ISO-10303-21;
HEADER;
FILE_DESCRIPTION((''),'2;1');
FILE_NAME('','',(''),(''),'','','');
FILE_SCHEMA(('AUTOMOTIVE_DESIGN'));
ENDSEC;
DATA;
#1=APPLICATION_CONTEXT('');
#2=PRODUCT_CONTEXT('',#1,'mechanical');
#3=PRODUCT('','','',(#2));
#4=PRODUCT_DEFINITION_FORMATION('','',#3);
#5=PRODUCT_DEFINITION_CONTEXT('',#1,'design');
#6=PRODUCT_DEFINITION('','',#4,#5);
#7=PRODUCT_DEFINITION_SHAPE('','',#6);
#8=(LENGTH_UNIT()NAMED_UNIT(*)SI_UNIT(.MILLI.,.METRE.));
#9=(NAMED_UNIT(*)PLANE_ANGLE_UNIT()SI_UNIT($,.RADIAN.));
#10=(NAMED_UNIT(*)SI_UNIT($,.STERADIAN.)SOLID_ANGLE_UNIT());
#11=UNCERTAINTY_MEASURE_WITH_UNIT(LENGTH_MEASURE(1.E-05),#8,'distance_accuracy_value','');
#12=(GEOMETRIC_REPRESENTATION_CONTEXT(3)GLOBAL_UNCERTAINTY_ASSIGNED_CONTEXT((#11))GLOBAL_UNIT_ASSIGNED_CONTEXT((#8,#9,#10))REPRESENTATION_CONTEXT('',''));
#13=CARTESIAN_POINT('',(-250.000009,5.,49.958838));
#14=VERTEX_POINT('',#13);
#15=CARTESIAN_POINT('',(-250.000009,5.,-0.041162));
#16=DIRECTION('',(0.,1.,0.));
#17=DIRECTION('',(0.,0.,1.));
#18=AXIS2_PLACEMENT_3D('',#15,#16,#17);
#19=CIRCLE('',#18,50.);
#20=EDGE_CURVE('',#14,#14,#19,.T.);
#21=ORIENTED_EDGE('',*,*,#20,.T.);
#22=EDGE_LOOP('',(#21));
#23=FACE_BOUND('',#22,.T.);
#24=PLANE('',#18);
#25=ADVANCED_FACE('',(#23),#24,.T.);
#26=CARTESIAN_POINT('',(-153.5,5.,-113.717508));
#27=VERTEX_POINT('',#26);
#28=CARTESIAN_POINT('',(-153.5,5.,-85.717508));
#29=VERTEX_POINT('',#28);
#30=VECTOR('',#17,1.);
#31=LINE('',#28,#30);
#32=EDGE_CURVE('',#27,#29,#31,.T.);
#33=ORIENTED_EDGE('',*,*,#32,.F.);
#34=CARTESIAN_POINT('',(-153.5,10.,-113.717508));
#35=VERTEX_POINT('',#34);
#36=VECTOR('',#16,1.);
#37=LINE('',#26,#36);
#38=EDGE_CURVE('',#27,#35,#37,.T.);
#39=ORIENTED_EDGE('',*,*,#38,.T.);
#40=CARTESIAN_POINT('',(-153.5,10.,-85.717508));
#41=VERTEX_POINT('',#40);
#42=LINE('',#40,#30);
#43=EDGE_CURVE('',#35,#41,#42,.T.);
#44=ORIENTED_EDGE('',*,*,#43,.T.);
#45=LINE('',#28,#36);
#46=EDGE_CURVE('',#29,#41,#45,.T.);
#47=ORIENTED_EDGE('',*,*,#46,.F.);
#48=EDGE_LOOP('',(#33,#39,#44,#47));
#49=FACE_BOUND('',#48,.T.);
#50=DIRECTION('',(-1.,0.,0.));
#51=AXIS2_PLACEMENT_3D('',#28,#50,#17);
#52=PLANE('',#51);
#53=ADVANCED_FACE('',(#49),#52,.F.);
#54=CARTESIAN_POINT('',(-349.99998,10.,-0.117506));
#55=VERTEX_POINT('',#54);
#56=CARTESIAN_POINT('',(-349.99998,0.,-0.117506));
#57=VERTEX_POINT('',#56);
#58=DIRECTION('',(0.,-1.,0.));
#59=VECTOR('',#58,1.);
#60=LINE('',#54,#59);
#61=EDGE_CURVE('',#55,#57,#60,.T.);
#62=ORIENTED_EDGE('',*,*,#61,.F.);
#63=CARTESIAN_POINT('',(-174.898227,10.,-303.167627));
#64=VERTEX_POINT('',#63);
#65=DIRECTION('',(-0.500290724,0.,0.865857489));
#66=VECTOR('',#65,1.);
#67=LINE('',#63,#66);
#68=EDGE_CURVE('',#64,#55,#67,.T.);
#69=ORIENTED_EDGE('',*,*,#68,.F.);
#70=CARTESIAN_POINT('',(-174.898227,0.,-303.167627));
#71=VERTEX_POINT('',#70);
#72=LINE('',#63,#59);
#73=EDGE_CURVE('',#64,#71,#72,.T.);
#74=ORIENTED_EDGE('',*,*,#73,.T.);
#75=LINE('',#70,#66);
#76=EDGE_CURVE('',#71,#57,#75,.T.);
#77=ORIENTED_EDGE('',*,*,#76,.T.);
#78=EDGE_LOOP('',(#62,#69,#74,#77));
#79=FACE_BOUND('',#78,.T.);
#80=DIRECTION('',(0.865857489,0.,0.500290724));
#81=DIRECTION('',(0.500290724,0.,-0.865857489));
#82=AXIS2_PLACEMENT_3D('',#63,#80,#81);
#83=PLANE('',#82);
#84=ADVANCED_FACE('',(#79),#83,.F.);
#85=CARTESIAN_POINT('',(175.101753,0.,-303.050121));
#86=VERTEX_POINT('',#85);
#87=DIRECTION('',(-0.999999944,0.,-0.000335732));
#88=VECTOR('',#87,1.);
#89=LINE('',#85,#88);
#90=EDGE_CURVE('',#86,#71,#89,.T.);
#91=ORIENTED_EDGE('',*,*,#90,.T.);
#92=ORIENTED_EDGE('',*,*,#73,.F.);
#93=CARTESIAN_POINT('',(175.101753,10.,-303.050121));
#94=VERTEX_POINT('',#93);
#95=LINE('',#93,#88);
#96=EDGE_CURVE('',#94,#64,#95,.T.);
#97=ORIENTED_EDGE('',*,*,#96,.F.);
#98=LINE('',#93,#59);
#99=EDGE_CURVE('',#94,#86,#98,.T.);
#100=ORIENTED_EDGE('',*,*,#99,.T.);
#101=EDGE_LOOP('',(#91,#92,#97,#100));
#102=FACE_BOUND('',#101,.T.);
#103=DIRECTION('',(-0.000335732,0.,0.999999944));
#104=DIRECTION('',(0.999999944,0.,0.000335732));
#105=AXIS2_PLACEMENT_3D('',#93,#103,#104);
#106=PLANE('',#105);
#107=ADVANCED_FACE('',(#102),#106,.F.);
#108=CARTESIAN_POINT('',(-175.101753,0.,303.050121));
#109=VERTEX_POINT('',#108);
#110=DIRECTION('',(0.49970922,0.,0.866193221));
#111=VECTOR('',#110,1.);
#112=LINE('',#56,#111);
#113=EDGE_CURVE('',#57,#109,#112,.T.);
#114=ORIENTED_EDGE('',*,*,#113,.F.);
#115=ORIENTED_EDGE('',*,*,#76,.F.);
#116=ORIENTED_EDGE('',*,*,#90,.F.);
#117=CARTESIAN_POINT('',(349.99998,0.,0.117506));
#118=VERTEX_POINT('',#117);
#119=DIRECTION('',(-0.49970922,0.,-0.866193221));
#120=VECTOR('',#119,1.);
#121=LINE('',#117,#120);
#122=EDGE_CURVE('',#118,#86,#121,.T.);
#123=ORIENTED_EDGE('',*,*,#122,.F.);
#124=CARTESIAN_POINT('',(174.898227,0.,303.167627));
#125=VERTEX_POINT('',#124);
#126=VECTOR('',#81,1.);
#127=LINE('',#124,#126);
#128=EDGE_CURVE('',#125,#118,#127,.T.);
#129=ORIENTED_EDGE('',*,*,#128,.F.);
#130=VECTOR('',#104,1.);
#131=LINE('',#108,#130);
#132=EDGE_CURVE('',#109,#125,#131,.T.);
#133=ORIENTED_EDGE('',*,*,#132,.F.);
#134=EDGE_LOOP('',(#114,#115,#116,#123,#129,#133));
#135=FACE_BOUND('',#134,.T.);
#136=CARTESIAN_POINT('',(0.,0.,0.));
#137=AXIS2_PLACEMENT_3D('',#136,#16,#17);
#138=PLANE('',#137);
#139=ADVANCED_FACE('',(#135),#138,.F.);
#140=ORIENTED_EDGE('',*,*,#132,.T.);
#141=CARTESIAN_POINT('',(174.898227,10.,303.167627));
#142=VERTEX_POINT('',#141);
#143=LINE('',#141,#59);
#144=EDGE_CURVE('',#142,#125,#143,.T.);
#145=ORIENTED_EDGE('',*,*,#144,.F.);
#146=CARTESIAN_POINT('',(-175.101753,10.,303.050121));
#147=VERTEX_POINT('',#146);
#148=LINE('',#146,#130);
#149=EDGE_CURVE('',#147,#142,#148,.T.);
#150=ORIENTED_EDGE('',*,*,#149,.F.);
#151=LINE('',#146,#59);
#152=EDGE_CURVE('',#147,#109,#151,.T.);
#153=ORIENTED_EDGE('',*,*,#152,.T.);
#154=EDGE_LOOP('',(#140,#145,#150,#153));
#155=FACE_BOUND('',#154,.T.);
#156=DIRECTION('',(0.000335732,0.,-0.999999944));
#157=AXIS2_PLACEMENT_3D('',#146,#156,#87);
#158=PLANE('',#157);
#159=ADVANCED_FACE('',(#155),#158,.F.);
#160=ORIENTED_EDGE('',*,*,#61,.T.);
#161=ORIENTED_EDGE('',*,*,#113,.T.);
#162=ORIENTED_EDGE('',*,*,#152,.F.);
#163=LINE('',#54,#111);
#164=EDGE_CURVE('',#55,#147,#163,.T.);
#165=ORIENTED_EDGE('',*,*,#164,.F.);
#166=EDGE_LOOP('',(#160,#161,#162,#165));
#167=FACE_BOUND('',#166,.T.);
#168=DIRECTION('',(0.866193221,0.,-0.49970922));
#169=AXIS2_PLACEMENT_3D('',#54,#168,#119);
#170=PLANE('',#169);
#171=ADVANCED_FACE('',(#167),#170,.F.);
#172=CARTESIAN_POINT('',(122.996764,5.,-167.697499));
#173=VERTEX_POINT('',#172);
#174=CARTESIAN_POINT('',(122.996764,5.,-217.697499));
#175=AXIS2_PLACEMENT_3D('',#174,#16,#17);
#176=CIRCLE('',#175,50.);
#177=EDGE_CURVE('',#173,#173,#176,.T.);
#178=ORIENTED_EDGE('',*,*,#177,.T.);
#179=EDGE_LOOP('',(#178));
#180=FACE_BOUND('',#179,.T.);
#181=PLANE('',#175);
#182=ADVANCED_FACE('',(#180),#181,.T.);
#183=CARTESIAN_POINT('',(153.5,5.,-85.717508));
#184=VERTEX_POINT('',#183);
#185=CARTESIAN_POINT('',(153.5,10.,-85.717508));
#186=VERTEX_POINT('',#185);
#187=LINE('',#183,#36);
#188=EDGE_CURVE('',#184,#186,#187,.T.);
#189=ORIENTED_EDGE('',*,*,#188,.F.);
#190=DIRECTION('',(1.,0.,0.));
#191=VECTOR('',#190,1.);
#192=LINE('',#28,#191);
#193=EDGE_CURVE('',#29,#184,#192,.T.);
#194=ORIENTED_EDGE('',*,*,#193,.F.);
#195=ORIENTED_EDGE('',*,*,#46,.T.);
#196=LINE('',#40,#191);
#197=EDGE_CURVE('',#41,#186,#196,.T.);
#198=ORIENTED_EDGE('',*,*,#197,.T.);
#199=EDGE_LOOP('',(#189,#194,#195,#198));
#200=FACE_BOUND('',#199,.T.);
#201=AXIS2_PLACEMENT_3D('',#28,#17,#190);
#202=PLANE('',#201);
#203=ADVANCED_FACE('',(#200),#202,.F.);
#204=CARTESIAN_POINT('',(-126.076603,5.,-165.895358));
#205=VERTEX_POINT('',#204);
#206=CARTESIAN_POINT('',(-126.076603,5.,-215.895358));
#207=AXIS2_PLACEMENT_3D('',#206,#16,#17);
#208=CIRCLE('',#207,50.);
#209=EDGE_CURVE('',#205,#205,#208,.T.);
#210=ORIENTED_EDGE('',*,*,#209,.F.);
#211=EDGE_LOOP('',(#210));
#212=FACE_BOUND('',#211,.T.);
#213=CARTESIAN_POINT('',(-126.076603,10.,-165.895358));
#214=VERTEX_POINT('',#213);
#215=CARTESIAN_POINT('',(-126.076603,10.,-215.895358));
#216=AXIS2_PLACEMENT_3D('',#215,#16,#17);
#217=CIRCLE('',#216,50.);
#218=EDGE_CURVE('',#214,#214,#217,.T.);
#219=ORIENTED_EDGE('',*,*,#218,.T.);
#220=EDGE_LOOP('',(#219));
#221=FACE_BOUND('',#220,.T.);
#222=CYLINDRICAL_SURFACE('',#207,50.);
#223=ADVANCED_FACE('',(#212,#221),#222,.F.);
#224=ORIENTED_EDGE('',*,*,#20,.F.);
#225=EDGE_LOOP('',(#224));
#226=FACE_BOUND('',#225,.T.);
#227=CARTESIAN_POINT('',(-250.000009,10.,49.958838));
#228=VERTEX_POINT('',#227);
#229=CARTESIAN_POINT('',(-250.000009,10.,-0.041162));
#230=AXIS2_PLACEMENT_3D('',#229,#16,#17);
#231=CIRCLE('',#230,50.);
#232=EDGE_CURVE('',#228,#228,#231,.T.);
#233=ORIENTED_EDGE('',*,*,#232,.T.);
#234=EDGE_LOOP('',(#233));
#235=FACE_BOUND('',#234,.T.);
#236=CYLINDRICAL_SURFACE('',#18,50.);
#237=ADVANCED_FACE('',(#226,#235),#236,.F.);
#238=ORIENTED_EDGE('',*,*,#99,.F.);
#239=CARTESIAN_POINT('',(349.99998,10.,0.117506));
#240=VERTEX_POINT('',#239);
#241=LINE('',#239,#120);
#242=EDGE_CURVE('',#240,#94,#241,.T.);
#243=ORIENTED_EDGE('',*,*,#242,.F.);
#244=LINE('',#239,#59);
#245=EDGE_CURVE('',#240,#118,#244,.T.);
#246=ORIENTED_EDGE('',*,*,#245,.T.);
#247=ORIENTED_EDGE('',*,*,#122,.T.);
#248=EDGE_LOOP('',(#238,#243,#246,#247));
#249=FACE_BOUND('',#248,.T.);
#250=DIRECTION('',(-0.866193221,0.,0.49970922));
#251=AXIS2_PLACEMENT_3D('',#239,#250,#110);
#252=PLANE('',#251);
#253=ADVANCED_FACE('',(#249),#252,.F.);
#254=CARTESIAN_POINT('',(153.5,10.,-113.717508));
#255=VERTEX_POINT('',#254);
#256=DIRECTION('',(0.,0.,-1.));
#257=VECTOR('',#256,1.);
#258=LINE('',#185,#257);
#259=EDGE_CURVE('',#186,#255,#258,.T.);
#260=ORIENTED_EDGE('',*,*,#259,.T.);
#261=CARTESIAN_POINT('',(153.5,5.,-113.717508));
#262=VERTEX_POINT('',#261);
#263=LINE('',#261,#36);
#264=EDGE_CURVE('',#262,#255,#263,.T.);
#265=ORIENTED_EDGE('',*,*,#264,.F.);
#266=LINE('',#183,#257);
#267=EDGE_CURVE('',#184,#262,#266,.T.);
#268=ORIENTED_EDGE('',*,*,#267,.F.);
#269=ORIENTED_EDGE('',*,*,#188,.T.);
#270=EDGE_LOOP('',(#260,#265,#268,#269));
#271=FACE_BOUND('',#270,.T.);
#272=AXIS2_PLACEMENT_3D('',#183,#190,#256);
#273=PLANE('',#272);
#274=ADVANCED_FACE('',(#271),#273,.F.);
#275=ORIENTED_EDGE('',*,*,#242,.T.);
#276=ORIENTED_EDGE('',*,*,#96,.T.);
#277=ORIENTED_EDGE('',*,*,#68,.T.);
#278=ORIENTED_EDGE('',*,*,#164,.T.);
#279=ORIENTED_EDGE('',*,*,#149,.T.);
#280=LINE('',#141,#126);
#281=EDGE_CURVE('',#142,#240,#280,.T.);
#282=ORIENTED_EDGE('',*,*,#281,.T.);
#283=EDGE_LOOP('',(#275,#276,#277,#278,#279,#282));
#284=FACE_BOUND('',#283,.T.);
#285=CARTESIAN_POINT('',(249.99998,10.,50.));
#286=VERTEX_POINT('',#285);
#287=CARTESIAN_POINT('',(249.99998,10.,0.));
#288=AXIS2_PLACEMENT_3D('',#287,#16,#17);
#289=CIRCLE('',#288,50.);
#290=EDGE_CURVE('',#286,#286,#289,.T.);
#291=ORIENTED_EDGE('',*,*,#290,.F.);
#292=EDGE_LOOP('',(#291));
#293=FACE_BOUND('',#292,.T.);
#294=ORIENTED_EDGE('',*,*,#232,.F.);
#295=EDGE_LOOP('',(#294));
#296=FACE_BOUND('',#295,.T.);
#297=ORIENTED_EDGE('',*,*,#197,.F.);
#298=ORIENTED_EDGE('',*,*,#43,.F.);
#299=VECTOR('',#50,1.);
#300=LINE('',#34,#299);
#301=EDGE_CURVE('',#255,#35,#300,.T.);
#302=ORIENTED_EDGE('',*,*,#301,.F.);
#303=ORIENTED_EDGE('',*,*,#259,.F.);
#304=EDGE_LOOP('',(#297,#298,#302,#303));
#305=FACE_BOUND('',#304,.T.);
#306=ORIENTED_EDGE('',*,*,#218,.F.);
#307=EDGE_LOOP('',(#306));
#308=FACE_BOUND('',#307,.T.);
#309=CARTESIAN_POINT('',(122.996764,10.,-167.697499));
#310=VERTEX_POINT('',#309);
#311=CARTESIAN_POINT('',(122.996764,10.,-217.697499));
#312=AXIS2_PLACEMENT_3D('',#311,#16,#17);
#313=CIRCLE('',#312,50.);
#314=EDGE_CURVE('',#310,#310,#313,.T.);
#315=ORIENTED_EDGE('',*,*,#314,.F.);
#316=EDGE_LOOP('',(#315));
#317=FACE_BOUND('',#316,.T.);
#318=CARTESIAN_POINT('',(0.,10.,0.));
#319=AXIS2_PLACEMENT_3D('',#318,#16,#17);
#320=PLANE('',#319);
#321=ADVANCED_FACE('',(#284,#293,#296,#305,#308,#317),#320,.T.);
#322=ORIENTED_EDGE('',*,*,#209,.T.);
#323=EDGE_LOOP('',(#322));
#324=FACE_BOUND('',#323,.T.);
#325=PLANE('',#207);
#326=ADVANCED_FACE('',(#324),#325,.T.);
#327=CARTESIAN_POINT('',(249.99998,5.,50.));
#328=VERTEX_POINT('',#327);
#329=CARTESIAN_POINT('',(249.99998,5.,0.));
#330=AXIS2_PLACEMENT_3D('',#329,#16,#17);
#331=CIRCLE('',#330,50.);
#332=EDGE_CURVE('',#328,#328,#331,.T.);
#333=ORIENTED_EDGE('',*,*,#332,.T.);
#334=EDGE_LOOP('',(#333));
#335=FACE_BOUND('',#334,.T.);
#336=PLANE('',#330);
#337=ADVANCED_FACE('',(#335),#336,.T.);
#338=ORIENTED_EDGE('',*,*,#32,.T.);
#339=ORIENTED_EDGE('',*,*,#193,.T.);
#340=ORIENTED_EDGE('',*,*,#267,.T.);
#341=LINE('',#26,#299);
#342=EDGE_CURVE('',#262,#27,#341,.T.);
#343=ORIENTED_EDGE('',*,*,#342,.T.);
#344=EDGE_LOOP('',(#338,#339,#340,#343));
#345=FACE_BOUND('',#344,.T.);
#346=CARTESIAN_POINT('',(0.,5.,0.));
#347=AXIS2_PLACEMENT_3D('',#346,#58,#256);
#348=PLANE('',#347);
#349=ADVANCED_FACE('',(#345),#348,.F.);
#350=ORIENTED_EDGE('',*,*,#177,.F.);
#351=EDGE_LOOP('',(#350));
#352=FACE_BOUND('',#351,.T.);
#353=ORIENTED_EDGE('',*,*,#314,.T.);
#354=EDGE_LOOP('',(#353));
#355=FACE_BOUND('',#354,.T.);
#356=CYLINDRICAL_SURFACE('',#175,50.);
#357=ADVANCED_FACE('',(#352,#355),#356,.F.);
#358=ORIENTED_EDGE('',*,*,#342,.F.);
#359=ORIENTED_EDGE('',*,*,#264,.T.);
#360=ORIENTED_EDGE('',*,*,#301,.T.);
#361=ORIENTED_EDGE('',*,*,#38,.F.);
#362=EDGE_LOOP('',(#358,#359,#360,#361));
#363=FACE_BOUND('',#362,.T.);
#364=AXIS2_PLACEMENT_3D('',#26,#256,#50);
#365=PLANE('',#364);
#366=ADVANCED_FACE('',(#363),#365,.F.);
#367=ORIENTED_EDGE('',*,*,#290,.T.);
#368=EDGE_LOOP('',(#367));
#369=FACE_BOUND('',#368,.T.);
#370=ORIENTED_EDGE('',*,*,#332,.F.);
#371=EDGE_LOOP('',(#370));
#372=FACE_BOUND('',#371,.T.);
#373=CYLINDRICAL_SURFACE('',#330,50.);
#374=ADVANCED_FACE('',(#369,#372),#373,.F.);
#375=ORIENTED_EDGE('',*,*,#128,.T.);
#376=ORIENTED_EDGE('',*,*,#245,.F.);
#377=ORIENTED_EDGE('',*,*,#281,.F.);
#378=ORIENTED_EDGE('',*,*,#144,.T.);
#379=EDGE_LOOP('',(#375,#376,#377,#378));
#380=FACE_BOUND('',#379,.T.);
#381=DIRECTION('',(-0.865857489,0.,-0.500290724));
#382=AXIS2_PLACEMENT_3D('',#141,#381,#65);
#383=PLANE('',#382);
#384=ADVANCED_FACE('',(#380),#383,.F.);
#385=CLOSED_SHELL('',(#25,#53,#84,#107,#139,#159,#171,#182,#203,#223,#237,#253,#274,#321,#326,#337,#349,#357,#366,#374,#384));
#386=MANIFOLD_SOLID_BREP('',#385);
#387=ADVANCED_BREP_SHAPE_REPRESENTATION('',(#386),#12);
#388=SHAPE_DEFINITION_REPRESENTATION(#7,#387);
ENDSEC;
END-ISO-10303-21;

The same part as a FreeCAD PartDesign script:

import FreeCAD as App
import Part
import Sketcher
from FreeCAD import Vector


def add_polygon(sketch, points):
    """Adds a closed chain of lines whose ends are joined by coincident constraints."""
    first, n = sketch.GeometryCount, len(points)
    for a, b in zip(points, points[1:] + points[:1]):
        sketch.addGeometry(Part.LineSegment(App.Vector(*a, 0), App.Vector(*b, 0)), False)
    for i in range(n):
        sketch.addConstraint(Sketcher.Constraint("Coincident", first + i, 2, first + (i + 1) % n, 1))

doc = App.newDocument("Part")
body = doc.addObject("PartDesign::Body", "Body")

sketch1 = body.newObject("Sketcher::SketchObject", "Sketch")
sketch1.AttachmentSupport = (doc.getObject("XZ_Plane"), [""])
sketch1.MapMode = "FlatFace"
add_polygon(sketch1, [(175.101753, -303.050121), (-174.898227, -303.167627), (-349.99998, -0.117506), (-175.101753, 303.050121), (174.898227, 303.167627), (349.99998, 0.117506)])
sketch1.addConstraint(Sketcher.Constraint("Symmetric", 0, 2, 3, 2, -1, 1))
sketch1.addConstraint(Sketcher.Constraint("Symmetric", 1, 2, 4, 2, -1, 1))
sketch1.addConstraint(Sketcher.Constraint("Symmetric", 2, 2, 5, 2, -1, 1))
sketch1.addConstraint(Sketcher.Constraint("Equal", 0, 1))
sketch1.addConstraint(Sketcher.Constraint("Equal", 1, 2))
sketch1.addConstraint(Sketcher.Constraint("Distance", 0, 350.0))
sketch1.addConstraint(Sketcher.Constraint("DistanceX", 1, 2, -1, 1, 349.99998))
sketch1.addConstraint(Sketcher.Constraint("DistanceY", -1, 1, 2, 2, 303.050121))
sketch1.addConstraint(Sketcher.Constraint("DistanceY", 0, 2, 1, 2, 303.050121))
pad1 = body.newObject("PartDesign::Pad", "Pad")
pad1.Profile = sketch1
pad1.Length = 10
pad1.Reversed = True

sketch2 = body.newObject("Sketcher::SketchObject", "Sketch001")
sketch2.AttachmentSupport = (doc.getObject("XZ_Plane"), [""])
sketch2.MapMode = "FlatFace"
sketch2.AttachmentOffset = App.Placement(Vector(0, 0, -10), App.Rotation())
sketch2.addGeometry(Part.Circle(Vector(-250.000009, -0.041162, 0), Vector(0, 0, 1), 50), False)
sketch2.addGeometry(Part.Circle(Vector(-126.076603, -215.895358, 0), Vector(0, 0, 1), 50), False)
sketch2.addGeometry(Part.Circle(Vector(249.99998, 0, 0), Vector(0, 0, 1), 50), False)
sketch2.addGeometry(Part.Circle(Vector(122.996764, -217.697499, 0), Vector(0, 0, 1), 50), False)
sketch2.addConstraint(Sketcher.Constraint("Equal", 0, 1))
sketch2.addConstraint(Sketcher.Constraint("Equal", 1, 2))
sketch2.addConstraint(Sketcher.Constraint("Equal", 2, 3))
sketch2.addConstraint(Sketcher.Constraint("PointOnObject", 2, 3, -1))
sketch2.addConstraint(Sketcher.Constraint("Diameter", 0, 100.0))
sketch2.addConstraint(Sketcher.Constraint("DistanceY", 3, 3, -1, 1, 217.697499))
sketch2.addConstraint(Sketcher.Constraint("DistanceX", 0, 3, -1, 1, 250.000009))
sketch2.addConstraint(Sketcher.Constraint("DistanceY", 0, 3, -1, 1, 0.041162))
sketch2.addConstraint(Sketcher.Constraint("DistanceX", -1, 1, 2, 3, 249.99998))
sketch2.addConstraint(Sketcher.Constraint("DistanceY", 3, 3, 1, 3, 1.802141))
sketch2.addConstraint(Sketcher.Constraint("DistanceX", 1, 3, -1, 1, 126.076603))
sketch2.addConstraint(Sketcher.Constraint("DistanceX", -1, 1, 3, 3, 122.996764))
pocket1 = body.newObject("PartDesign::Pocket", "Pocket")
pocket1.Profile = sketch2
pocket1.Length = 5
pocket1.Reversed = True

sketch3 = body.newObject("Sketcher::SketchObject", "Sketch002")
sketch3.AttachmentSupport = (doc.getObject("XZ_Plane"), [""])
sketch3.MapMode = "FlatFace"
sketch3.AttachmentOffset = App.Placement(Vector(0, 0, -10), App.Rotation())
add_polygon(sketch3, [(-153.5, -113.717508), (-153.5, -85.717508), (153.5, -85.717508), (153.5, -113.717508)])
sketch3.addConstraint(Sketcher.Constraint("Vertical", 0))
sketch3.addConstraint(Sketcher.Constraint("Horizontal", 1))
sketch3.addConstraint(Sketcher.Constraint("Vertical", 2))
sketch3.addConstraint(Sketcher.Constraint("Horizontal", 3))
sketch3.addConstraint(Sketcher.Constraint("DistanceX", 1, 1, 1, 2, 307.0))
sketch3.addConstraint(Sketcher.Constraint("DistanceY", 0, 1, 0, 2, 28.0))
sketch3.addConstraint(Sketcher.Constraint("DistanceX", 0, 2, -1, 1, 153.5))
sketch3.addConstraint(Sketcher.Constraint("DistanceY", 0, 2, -1, 1, 85.717508))
pocket2 = body.newObject("PartDesign::Pocket", "Pocket001")
pocket2.Profile = sketch3
pocket2.Length = 5
pocket2.Reversed = True

doc.recompute()
